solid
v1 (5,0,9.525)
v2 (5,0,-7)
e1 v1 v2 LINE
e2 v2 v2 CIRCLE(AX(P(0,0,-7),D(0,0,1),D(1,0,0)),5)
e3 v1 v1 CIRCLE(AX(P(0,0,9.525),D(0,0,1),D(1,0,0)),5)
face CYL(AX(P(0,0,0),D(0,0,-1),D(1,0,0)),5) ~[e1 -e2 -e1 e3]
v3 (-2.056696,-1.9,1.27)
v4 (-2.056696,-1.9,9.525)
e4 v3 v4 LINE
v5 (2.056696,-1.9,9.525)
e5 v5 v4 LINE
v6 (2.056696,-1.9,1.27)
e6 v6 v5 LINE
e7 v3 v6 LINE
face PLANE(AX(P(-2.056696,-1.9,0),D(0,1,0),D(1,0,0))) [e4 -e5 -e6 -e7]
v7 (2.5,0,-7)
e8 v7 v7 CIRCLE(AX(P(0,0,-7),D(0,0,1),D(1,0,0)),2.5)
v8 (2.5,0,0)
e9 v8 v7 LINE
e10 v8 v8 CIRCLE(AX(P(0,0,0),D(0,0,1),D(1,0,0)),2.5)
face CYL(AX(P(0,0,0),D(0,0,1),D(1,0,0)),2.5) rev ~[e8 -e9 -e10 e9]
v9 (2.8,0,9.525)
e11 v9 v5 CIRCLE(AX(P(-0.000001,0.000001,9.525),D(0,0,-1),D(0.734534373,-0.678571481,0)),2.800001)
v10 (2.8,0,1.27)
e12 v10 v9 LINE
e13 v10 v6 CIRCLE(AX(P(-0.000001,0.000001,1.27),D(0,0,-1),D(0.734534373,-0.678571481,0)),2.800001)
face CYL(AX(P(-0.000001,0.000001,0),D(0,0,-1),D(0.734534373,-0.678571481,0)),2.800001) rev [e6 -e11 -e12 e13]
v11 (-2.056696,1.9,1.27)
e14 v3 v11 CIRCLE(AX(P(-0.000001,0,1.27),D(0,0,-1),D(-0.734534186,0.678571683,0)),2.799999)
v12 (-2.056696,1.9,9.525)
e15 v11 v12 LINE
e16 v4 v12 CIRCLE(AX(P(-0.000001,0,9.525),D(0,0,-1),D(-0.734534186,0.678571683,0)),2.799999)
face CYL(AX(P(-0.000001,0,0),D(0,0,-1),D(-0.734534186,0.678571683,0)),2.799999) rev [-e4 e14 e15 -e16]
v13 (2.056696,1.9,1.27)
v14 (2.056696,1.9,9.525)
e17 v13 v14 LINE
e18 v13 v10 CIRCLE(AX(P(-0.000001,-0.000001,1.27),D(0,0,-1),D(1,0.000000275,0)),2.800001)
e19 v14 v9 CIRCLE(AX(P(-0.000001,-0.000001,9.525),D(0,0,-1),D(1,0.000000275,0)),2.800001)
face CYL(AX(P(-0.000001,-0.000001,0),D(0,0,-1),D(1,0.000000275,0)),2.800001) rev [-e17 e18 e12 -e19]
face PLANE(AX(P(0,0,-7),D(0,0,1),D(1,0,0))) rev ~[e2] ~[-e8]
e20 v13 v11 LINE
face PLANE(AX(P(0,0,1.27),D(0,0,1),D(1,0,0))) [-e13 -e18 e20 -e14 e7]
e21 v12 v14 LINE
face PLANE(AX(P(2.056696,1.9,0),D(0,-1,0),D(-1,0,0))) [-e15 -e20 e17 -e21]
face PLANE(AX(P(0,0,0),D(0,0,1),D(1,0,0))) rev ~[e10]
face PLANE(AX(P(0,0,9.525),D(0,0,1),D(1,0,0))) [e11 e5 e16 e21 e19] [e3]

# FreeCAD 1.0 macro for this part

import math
import FreeCAD as App
import Part
import Sketcher
from FreeCAD import Vector

doc = App.newDocument("Part")
body = doc.addObject("PartDesign::Body", "Body")

sketch1 = doc.addObject("Sketcher::SketchObject", "Sketch")
body.addObject(sketch1)
sketch1.AttachmentSupport = (doc.XY_Plane, [""])
sketch1.MapMode = "FlatFace"
sketch1.addGeometry(Part.Circle(Vector(0, 0, 0), Vector(0, 0, 1), 5), False)
sketch1.addConstraint(Sketcher.Constraint("Coincident", 0, 3, -1, 1))
sketch1.addConstraint(Sketcher.Constraint("Diameter", 0, 10.0))
pad1 = doc.addObject("PartDesign::Pad", "Pad")
body.addObject(pad1)
pad1.Profile = sketch1
pad1.Type = "TwoLengths"
pad1.Length = 9.525
pad1.Length2 = 7

sketch2 = doc.addObject("Sketcher::SketchObject", "Sketch001")
body.addObject(sketch2)
sketch2.AttachmentSupport = (doc.XY_Plane, [""])
sketch2.MapMode = "FlatFace"
sketch2.addGeometry(Part.ArcOfCircle(Part.Circle(Vector(-0.000001, 0.000001, 0), Vector(0, 0, 1), 2.800001), math.radians(-42.732114), math.radians(-0.000016)), False)
sketch2.addGeometry(Part.ArcOfCircle(Part.Circle(Vector(-0.000001, -0.000001, 0), Vector(0, 0, 1), 2.800001), math.radians(0.000016), math.radians(42.732114)), False)
sketch2.addGeometry(Part.LineSegment(Vector(2.056696, 1.9, 0), Vector(-2.056696, 1.9, 0)), False)
sketch2.addGeometry(Part.ArcOfCircle(Part.Circle(Vector(-0.000001, 0, 0), Vector(0, 0, 1), 2.799999), math.radians(137.26787), math.radians(222.73213)), False)
sketch2.addGeometry(Part.LineSegment(Vector(-2.056696, -1.9, 0), Vector(2.056696, -1.9, 0)), False)
sketch2.addConstraint(Sketcher.Constraint("Tangent", 0, 2, 1, 1))
sketch2.addConstraint(Sketcher.Constraint("Coincident", 1, 2, 2, 1))
sketch2.addConstraint(Sketcher.Constraint("Coincident", 2, 2, 3, 1))
sketch2.addConstraint(Sketcher.Constraint("Coincident", 3, 2, 4, 1))
sketch2.addConstraint(Sketcher.Constraint("Coincident", 4, 2, 0, 1))
sketch2.addConstraint(Sketcher.Constraint("Horizontal", 2))
sketch2.addConstraint(Sketcher.Constraint("Horizontal", 4))
sketch2.addConstraint(Sketcher.Constraint("Coincident", 0, 3, -1, 1))
sketch2.addConstraint(Sketcher.Constraint("Coincident", 3, 3, -1, 1))
sketch2.addConstraint(Sketcher.Constraint("Equal", 0, 1))
sketch2.addConstraint(Sketcher.Constraint("Equal", 1, 3))
sketch2.addConstraint(Sketcher.Constraint("PointOnObject", 0, 2, -1))
sketch2.addConstraint(Sketcher.Constraint("Vertical", 2, 2, 3, 2))
sketch2.addConstraint(Sketcher.Constraint("Radius", 0, 2.800001))
sketch2.addConstraint(Sketcher.Constraint("DistanceY", -1, 1, 1, 2, 1.9))
pocket1 = doc.addObject("PartDesign::Pocket", "Pocket")
body.addObject(pocket1)
pocket1.Profile = sketch2
pocket1.Type = "ThroughAll"
pocket1.Reversed = True

sketch3 = doc.addObject("Sketcher::SketchObject", "Sketch002")
body.addObject(sketch3)
sketch3.AttachmentSupport = (doc.XY_Plane, [""])
sketch3.MapMode = "FlatFace"
sketch3.addGeometry(Part.Circle(Vector(0, 0, 0), Vector(0, 0, 1), 2.5), False)
sketch3.addConstraint(Sketcher.Constraint("Coincident", 0, 3, -1, 1))
sketch3.addConstraint(Sketcher.Constraint("Diameter", 0, 5.0))
pocket2 = doc.addObject("PartDesign::Pocket", "Pocket001")
body.addObject(pocket2)
pocket2.Profile = sketch3
pocket2.Type = "ThroughAll"

sketch4 = doc.addObject("Sketcher::SketchObject", "Sketch003")
body.addObject(sketch4)
sketch4.AttachmentSupport = (doc.XY_Plane, [""])
sketch4.MapMode = "FlatFace"
sketch4.addGeometry(Part.Circle(Vector(0, 0, 0), Vector(0, 0, 1), 5), False)
sketch4.addConstraint(Sketcher.Constraint("Coincident", 0, 3, -1, 1))
sketch4.addConstraint(Sketcher.Constraint("Diameter", 0, 10.0))
pad2 = doc.addObject("PartDesign::Pad", "Pad001")
body.addObject(pad2)
pad2.Profile = sketch4
pad2.Length = 1.27

doc.recompute()
